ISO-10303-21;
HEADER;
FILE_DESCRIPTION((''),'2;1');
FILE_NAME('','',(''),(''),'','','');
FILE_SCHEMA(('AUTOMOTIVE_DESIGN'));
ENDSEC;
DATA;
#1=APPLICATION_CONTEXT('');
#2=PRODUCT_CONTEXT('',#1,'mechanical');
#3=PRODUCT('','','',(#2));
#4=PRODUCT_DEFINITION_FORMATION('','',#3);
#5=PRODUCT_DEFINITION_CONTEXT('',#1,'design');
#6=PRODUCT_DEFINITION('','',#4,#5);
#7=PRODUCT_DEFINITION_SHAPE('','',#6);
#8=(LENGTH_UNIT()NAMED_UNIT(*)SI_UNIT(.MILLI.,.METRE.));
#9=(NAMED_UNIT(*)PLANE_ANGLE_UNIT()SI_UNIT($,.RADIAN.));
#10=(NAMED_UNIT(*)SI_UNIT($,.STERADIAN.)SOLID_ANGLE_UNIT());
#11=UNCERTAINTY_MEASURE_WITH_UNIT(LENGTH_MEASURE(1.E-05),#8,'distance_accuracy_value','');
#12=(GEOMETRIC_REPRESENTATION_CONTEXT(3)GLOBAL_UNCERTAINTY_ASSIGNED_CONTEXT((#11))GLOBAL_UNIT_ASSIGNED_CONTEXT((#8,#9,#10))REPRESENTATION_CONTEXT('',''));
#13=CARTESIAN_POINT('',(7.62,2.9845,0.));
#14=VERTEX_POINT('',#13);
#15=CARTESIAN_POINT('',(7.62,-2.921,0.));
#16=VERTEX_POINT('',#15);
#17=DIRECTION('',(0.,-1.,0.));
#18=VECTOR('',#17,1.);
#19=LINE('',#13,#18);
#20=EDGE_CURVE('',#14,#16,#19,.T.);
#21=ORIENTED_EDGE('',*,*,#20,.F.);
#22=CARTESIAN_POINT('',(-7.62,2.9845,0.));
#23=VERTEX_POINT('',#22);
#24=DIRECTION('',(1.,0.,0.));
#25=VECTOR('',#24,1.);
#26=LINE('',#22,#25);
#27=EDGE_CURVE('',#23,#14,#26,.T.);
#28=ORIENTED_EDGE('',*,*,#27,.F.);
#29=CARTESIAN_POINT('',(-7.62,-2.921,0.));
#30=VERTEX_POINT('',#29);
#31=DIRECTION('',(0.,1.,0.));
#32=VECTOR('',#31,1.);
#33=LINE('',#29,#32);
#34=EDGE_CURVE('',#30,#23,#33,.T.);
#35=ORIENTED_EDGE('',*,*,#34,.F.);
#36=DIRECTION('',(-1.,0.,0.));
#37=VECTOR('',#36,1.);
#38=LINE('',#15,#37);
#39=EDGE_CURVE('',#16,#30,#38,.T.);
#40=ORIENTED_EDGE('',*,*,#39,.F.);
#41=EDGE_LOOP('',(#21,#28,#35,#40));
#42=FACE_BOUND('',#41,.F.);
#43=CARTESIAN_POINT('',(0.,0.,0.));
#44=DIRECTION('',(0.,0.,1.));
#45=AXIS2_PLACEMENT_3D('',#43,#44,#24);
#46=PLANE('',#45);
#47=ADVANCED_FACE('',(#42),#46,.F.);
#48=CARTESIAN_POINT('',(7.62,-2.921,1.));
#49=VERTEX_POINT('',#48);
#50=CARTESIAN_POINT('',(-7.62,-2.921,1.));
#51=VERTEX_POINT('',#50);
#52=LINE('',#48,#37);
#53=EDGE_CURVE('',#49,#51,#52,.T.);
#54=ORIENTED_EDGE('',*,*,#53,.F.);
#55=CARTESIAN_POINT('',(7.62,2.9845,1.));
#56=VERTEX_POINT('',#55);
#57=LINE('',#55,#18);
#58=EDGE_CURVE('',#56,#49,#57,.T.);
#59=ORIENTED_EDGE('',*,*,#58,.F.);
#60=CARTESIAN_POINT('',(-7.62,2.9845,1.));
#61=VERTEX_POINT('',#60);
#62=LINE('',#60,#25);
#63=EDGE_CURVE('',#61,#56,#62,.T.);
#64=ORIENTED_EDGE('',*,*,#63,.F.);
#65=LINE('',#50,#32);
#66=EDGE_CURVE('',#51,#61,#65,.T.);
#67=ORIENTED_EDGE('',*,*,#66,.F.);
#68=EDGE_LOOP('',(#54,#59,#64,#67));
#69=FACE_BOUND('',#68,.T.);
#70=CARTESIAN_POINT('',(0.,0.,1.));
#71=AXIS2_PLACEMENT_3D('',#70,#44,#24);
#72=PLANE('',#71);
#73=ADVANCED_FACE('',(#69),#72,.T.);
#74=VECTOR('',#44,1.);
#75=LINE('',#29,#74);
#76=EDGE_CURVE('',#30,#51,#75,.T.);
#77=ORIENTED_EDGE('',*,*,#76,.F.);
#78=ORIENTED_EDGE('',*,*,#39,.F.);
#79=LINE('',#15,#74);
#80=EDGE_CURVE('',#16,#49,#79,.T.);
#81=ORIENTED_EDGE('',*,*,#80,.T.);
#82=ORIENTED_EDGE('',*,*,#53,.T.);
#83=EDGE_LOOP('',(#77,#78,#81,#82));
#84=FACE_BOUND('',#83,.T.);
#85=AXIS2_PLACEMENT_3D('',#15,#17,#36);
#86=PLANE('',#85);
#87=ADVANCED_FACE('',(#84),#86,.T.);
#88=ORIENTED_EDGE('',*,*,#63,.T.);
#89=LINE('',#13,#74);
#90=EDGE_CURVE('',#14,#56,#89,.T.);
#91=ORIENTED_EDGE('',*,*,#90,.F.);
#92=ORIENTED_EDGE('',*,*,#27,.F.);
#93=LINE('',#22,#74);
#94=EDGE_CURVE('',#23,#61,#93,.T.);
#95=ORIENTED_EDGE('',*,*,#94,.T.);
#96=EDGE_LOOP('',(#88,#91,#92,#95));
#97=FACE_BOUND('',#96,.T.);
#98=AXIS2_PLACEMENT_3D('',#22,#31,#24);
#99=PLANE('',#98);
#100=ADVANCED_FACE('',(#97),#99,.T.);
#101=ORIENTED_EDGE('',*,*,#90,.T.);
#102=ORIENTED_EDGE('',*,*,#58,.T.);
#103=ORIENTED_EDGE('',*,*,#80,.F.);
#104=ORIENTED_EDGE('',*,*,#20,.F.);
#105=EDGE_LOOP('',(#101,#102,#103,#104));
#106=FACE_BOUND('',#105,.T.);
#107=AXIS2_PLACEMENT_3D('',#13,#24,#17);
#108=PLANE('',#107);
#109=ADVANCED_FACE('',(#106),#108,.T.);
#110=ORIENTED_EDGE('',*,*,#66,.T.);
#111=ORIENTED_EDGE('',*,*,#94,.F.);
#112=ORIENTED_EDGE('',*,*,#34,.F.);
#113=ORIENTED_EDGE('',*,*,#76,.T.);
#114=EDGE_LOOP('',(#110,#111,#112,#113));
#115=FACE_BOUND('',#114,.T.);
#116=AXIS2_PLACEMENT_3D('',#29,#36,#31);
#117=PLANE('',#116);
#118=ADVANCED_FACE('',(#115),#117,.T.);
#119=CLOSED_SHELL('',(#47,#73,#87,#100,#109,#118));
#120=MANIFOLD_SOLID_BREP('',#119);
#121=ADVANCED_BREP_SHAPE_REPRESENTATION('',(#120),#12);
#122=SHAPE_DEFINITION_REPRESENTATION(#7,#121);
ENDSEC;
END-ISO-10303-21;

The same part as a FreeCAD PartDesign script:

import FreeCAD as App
import Part
import Sketcher
Q = App.Units.Quantity


def add_polygon(sketch, points):
    """Adds a closed chain of lines whose ends are joined by coincident constraints."""
    first, n = sketch.GeometryCount, len(points)
    for a, b in zip(points, points[1:] + points[:1]):
        sketch.addGeometry(Part.LineSegment(App.Vector(*a, 0), App.Vector(*b, 0)), False)
    for i in range(n):
        sketch.addConstraint(Sketcher.Constraint("Coincident", first + i, 2, first + (i + 1) % n, 1))

doc = App.newDocument("Part")
body = doc.addObject("PartDesign::Body", "Body")

# Sketch on XY plane
sketch1 = body.newObject("Sketcher::SketchObject", "Sketch")
sketch1.AttachmentSupport = (doc.getObject("XY_Plane"), [""])
sketch1.MapMode = "FlatFace"
add_polygon(sketch1, [(7.62, 2.9845), (-7.62, 2.9845), (-7.62, -2.921), (7.62, -2.921)])  # lines 0-3
sketch1.addConstraint(Sketcher.Constraint("Horizontal", 0))
sketch1.addConstraint(Sketcher.Constraint("Vertical", 1))
sketch1.addConstraint(Sketcher.Constraint("Horizontal", 2))
sketch1.addConstraint(Sketcher.Constraint("Vertical", 3))
sketch1.addConstraint(Sketcher.Constraint("DistanceX", 0, 2, 0, 1, Q("15.24 mm")))
sketch1.addConstraint(Sketcher.Constraint("DistanceX", 0, 2, -1, 1, Q("7.62 mm")))
sketch1.addConstraint(Sketcher.Constraint("DistanceY", 1, 2, 1, 1, Q("5.9055 mm")))
sketch1.addConstraint(Sketcher.Constraint("DistanceY", 1, 2, -1, 1, Q("2.921 mm")))
pad1 = body.newObject("PartDesign::Pad", "Pad")
pad1.Profile = sketch1
pad1.Length = 1

doc.recompute()
